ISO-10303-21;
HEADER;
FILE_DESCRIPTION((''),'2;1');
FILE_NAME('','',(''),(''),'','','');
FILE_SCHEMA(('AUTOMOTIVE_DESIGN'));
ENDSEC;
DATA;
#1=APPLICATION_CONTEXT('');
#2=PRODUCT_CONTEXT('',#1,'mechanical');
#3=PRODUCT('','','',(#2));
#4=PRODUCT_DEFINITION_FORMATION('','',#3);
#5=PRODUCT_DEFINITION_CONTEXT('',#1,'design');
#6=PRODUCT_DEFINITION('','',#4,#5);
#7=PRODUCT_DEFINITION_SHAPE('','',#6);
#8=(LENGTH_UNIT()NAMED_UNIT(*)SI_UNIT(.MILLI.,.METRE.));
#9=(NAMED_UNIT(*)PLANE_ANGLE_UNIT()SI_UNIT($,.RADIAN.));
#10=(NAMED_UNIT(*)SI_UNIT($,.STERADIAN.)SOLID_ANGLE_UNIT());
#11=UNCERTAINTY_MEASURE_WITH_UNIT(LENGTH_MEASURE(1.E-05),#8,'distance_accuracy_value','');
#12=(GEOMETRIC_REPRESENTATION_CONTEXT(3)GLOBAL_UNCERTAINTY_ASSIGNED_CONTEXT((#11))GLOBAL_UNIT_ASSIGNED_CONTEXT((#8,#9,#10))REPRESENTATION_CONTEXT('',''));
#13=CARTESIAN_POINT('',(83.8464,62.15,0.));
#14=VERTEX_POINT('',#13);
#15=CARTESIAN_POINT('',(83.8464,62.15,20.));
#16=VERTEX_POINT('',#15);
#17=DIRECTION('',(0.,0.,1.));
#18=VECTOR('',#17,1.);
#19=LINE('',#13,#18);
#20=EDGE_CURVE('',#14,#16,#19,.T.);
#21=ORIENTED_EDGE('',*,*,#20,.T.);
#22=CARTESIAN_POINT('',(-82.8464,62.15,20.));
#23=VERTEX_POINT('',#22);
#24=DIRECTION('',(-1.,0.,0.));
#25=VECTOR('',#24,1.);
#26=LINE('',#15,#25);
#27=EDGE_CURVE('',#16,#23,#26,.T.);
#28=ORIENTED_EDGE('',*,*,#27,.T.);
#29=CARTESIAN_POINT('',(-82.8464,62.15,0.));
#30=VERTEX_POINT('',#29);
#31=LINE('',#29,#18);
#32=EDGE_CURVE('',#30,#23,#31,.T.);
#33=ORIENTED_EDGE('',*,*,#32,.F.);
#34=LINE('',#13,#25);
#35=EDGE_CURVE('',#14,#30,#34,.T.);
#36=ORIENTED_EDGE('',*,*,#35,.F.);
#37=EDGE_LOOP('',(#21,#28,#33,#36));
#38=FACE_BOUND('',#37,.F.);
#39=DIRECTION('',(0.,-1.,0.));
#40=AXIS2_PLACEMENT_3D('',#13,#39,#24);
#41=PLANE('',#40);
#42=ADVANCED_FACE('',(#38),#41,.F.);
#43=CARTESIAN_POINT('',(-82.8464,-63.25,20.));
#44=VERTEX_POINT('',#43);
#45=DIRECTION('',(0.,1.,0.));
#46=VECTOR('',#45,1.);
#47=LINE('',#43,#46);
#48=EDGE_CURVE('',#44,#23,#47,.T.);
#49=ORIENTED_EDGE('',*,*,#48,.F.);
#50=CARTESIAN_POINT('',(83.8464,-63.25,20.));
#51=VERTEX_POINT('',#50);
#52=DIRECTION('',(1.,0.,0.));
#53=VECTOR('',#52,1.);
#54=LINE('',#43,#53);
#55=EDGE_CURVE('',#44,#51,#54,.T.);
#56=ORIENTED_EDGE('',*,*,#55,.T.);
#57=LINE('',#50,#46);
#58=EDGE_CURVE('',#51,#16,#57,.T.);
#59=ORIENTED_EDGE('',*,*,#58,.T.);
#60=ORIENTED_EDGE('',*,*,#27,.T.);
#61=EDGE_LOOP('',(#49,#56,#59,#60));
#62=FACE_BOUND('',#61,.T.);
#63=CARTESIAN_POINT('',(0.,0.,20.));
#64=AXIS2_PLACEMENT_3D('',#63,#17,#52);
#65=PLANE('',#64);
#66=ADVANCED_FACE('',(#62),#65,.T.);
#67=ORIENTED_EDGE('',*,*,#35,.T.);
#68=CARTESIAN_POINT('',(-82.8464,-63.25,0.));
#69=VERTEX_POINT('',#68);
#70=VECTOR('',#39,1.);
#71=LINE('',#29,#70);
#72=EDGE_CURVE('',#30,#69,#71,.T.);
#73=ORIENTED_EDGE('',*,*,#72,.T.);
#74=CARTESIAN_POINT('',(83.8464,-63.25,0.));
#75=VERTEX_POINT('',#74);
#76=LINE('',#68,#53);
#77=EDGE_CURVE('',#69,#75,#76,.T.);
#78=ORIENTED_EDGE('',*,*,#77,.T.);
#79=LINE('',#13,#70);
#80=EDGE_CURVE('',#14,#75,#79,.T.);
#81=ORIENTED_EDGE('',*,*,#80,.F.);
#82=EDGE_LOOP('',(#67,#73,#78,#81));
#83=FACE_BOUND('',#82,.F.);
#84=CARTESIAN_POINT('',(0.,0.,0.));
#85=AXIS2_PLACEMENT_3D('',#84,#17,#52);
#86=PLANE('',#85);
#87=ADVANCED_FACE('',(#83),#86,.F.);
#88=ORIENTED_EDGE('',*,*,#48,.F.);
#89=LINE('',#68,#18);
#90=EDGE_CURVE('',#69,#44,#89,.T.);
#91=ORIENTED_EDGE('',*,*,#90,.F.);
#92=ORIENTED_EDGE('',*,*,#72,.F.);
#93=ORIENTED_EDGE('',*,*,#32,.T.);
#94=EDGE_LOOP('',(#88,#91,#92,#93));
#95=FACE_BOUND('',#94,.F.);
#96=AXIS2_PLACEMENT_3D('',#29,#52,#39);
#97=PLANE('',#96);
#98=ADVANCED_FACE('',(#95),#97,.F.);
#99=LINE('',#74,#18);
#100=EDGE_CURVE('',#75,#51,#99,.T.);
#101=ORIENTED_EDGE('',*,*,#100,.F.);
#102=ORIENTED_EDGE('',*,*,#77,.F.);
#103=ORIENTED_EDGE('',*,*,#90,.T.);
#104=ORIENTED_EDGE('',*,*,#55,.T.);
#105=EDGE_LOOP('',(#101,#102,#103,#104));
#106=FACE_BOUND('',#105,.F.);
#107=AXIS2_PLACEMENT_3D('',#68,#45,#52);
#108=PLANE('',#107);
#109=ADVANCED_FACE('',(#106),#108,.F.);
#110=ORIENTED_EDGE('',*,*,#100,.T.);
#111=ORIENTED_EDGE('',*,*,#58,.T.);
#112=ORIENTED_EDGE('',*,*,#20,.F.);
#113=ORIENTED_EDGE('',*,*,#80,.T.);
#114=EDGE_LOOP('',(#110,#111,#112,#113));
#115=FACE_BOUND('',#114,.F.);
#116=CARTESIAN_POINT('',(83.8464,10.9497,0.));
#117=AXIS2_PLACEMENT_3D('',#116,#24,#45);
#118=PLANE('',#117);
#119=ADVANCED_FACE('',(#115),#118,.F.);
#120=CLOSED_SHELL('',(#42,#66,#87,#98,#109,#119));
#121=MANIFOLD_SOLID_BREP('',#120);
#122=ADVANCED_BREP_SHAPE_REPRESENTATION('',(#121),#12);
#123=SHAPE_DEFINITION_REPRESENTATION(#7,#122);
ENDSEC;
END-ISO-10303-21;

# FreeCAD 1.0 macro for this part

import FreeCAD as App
import Part
import Sketcher
Q = App.Units.Quantity

doc = App.newDocument("Part")
body = doc.addObject("PartDesign::Body", "Body")

# Sketch on XY plane
sketch1 = body.newObject("Sketcher::SketchObject", "Sketch")
sketch1.AttachmentSupport = (doc.getObject("XY_Plane"), [""])
sketch1.MapMode = "FlatFace"
sketch1.addGeometry(Part.LineSegment(App.Vector(-82.8464, 62.15, 0), App.Vector(-82.8464, -63.25, 0)), False)
sketch1.addGeometry(Part.LineSegment(App.Vector(-82.8464, -63.25, 0), App.Vector(83.8464, -63.25, 0)), False)
sketch1.addGeometry(Part.LineSegment(App.Vector(83.8464, -63.25, 0), App.Vector(83.8464, 62.15, 0)), False)
sketch1.addGeometry(Part.LineSegment(App.Vector(83.8464, 62.15, 0), App.Vector(-82.8464, 62.15, 0)), False)
sketch1.addConstraint(Sketcher.Constraint("Coincident", 0, 2, 1, 1))
sketch1.addConstraint(Sketcher.Constraint("Coincident", 1, 2, 2, 1))
sketch1.addConstraint(Sketcher.Constraint("Coincident", 2, 2, 3, 1))
sketch1.addConstraint(Sketcher.Constraint("Coincident", 3, 2, 0, 1))
sketch1.addConstraint(Sketcher.Constraint("Vertical", 0))
sketch1.addConstraint(Sketcher.Constraint("Horizontal", 1))
sketch1.addConstraint(Sketcher.Constraint("Vertical", 2))
sketch1.addConstraint(Sketcher.Constraint("Horizontal", 3))
sketch1.addConstraint(Sketcher.Constraint("DistanceY", 0, 2, 0, 1, Q("4.937 in")))
sketch1.addConstraint(Sketcher.Constraint("DistanceX", 1, 1, 1, 2, Q("6.5627 in")))
sketch1.addConstraint(Sketcher.Constraint("DistanceX", 0, 2, -1, 1, Q("82.8464 mm")))
sketch1.addConstraint(Sketcher.Constraint("DistanceY", 0, 2, -1, 1, Q("63.25 mm")))
pad1 = body.newObject("PartDesign::Pad", "Pad")
pad1.Profile = sketch1
pad1.Length = Q("0.7874016 in")

doc.recompute()
